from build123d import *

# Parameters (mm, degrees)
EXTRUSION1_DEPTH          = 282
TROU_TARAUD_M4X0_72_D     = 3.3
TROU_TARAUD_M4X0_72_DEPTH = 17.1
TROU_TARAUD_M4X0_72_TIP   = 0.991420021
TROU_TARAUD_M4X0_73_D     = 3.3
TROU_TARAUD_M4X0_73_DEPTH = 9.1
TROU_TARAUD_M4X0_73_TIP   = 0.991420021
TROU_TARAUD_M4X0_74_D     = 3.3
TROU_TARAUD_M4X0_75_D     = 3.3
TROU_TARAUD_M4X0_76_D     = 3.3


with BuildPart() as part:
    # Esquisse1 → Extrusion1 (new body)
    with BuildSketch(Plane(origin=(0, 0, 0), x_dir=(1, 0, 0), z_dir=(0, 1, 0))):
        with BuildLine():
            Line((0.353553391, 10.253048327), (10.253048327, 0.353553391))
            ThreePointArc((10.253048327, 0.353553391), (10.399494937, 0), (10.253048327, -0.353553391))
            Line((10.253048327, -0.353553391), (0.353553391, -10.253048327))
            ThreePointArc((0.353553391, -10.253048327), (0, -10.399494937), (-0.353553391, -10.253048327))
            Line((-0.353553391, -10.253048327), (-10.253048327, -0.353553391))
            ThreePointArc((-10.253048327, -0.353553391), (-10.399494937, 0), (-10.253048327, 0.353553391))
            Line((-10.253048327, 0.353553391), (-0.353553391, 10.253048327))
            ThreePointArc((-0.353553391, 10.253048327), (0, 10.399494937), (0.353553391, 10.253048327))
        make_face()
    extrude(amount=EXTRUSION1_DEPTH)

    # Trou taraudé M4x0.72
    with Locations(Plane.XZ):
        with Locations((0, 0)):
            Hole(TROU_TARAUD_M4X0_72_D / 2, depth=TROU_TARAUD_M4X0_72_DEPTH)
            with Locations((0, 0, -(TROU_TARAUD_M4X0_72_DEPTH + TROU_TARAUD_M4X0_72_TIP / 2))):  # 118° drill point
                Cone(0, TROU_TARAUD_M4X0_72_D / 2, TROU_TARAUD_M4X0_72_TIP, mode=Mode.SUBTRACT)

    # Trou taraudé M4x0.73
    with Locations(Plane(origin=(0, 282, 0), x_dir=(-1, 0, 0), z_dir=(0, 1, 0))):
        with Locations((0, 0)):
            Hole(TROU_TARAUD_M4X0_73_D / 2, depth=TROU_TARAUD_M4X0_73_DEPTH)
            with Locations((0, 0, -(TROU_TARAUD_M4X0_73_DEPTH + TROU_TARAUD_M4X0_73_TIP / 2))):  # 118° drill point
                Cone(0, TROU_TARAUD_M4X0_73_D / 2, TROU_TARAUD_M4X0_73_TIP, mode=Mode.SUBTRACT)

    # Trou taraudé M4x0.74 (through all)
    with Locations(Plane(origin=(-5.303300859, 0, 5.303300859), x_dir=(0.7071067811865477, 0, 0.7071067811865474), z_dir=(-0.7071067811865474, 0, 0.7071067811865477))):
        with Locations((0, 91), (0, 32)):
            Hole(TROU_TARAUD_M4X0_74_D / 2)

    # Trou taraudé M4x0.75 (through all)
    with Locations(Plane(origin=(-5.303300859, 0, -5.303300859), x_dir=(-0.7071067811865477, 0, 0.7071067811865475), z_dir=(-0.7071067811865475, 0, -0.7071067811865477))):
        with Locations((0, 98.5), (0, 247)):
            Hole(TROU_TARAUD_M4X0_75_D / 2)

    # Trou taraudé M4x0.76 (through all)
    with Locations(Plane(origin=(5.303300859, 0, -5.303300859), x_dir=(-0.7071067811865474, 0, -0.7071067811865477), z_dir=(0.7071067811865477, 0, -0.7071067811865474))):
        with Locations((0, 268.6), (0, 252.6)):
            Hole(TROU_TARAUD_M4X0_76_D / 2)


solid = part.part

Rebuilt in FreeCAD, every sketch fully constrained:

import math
import FreeCAD as App
import Part
import Sketcher
from FreeCAD import Vector
Q = App.Units.Quantity

doc = App.newDocument("Part")
body = doc.addObject("PartDesign::Body", "Body")

# Sketch on XZ plane
sketch1 = body.newObject("Sketcher::SketchObject", "Sketch")
sketch1.AttachmentSupport = (doc.getObject("XZ_Plane"), [""])
sketch1.MapMode = "FlatFace"
sketch1.addGeometry([
    Part.LineSegment(Vector(10.253048, -0.353553, 0), Vector(0.353553, -10.253048, 0)),  # 0
    Part.ArcOfCircle(Part.Circle(Vector(0, -9.899495, 0), Vector(0, 0, 1), 0.5), math.radians(-135), math.radians(-45)),  # 1
    Part.LineSegment(Vector(-0.353553, -10.253048, 0), Vector(-10.253048, -0.353553, 0)),  # 2
    Part.ArcOfCircle(Part.Circle(Vector(-9.899495, 0, 0), Vector(0, 0, 1), 0.5), math.radians(135), math.radians(225)),  # 3
    Part.LineSegment(Vector(-10.253048, 0.353553, 0), Vector(-0.353553, 10.253048, 0)),  # 4
    Part.ArcOfCircle(Part.Circle(Vector(0, 9.899495, 0), Vector(0, 0, 1), 0.5), math.radians(45), math.radians(135)),  # 5
    Part.LineSegment(Vector(0.353553, 10.253048, 0), Vector(10.253048, 0.353553, 0)),  # 6
    Part.ArcOfCircle(Part.Circle(Vector(9.899495, 0, 0), Vector(0, 0, 1), 0.5), math.radians(-45), math.radians(45)),  # 7
], False)
sketch1.addConstraint([
    Sketcher.Constraint("Tangent", 0, 2, 1, 2),
    Sketcher.Constraint("Tangent", 1, 1, 2, 1),
    Sketcher.Constraint("Tangent", 2, 2, 3, 2),
    Sketcher.Constraint("Tangent", 3, 1, 4, 1),
    Sketcher.Constraint("Tangent", 4, 2, 5, 2),
    Sketcher.Constraint("Tangent", 5, 1, 6, 1),
    Sketcher.Constraint("Tangent", 6, 2, 7, 2),
    Sketcher.Constraint("Tangent", 7, 1, 0, 1),
    Sketcher.Constraint("Equal", 1, 3),
    Sketcher.Constraint("Equal", 3, 5),
    Sketcher.Constraint("Equal", 5, 7),
    Sketcher.Constraint("Symmetric", 1, 3, 5, 3, -1, 1),
    Sketcher.Constraint("Symmetric", 3, 3, 7, 3, -1, 1),
    Sketcher.Constraint("Symmetric", 0, 2, 1, 1, -2),
    Sketcher.Constraint("Perpendicular", 0, 2),
    Sketcher.Constraint("Radius", 1, Q("0.5 mm")),
    Sketcher.Constraint("Distance", 0, Q("14 mm")),
])
pad1 = body.newObject("PartDesign::Pad", "Pad")
pad1.Profile = sketch1
pad1.Length = 282
pad1.Reversed = True

# Sketch on XZ plane
sketch2 = body.newObject("Sketcher::SketchObject", "Sketch001")
sketch2.AttachmentSupport = (doc.getObject("XZ_Plane"), [""])
sketch2.MapMode = "FlatFace"
sketch2.addGeometry(Part.Circle(Vector(0, 0, 0), Vector(0, 0, 1), 1.65), False)
sketch2.addConstraint([
    Sketcher.Constraint("Coincident", 0, 3, -1, 1),
    Sketcher.Constraint("Diameter", 0, Q("3.3 mm")),
])
doc.recompute()
hole = body.newObject("PartDesign::Hole", "Hole")
hole.Profile = sketch2
hole.ThreadType = "None"
hole.Diameter = 3.3
hole.DepthType = "Dimension"
hole.Depth = 17.1
hole.DrillPoint = "Angled"
hole.DrillPointAngle = 118

# Sketch on XZ plane
sketch3 = body.newObject("Sketcher::SketchObject", "Sketch002")
sketch3.AttachmentSupport = (doc.getObject("XZ_Plane"), [""])
sketch3.MapMode = "FlatFace"
sketch3.AttachmentOffset = App.Placement(Vector(0, 0, -282), App.Rotation())
sketch3.addGeometry(Part.Circle(Vector(0, 0, 0), Vector(0, 0, 1), 1.65), False)
sketch3.addConstraint([
    Sketcher.Constraint("Coincident", 0, 3, -1, 1),
    Sketcher.Constraint("Diameter", 0, Q("3.3 mm")),
])
doc.recompute()
hole2 = body.newObject("PartDesign::Hole", "Hole001")
hole2.Profile = sketch3
hole2.ThreadType = "None"
hole2.Diameter = 3.3
hole2.DepthType = "Dimension"
hole2.Depth = 9.1
hole2.DrillPoint = "Angled"
hole2.DrillPointAngle = 118
hole2.Reversed = True

# Sketch on an angled plane
sketch4 = body.newObject("Sketcher::SketchObject", "Sketch003")
sketch4.Placement = App.Placement(Vector(-5.303301, 0, 5.303301), App.Rotation(Vector(0.707106781, 0, 0.707106781), Vector(0, 0.999999999, 0), Vector(-0.707106781, 0, 0.707106781), "ZXY"))
sketch4.addGeometry([
    Part.Circle(Vector(0, 91, 0), Vector(0, 0, 1), 1.65),
    Part.Circle(Vector(0, 32, 0), Vector(0, 0, 1), 1.65),
], False)
sketch4.addConstraint([
    Sketcher.Constraint("Equal", 0, 1),
    Sketcher.Constraint("PointOnObject", 0, 3, -2),
    Sketcher.Constraint("PointOnObject", 1, 3, -2),
    Sketcher.Constraint("Diameter", 0, Q("3.3 mm")),
    Sketcher.Constraint("DistanceY", -1, 1, 0, 3, Q("91 mm")),
    Sketcher.Constraint("DistanceY", -1, 1, 1, 3, Q("32 mm")),
])
doc.recompute()
hole3 = body.newObject("PartDesign::Hole", "Hole002")
hole3.Profile = sketch4
hole3.ThreadType = "None"
hole3.Diameter = 3.3
hole3.DepthType = "ThroughAll"

# Sketch on an angled plane
sketch5 = body.newObject("Sketcher::SketchObject", "Sketch004")
sketch5.Placement = App.Placement(Vector(-5.303301, 0, -5.303301), App.Rotation(Vector(-0.707106781, 0, 0.707106781), Vector(0, 0.999999999, 0), Vector(-0.707106781, 0, -0.707106781), "ZXY"))
sketch5.addGeometry([
    Part.Circle(Vector(0, 98.5, 0), Vector(0, 0, 1), 1.65),
    Part.Circle(Vector(0, 247, 0), Vector(0, 0, 1), 1.65),
], False)
sketch5.addConstraint([
    Sketcher.Constraint("Equal", 0, 1),
    Sketcher.Constraint("PointOnObject", 0, 3, -2),
    Sketcher.Constraint("PointOnObject", 1, 3, -2),
    Sketcher.Constraint("Diameter", 0, Q("3.3 mm")),
    Sketcher.Constraint("DistanceY", -1, 1, 1, 3, Q("247 mm")),
    Sketcher.Constraint("DistanceY", -1, 1, 0, 3, Q("98.5 mm")),
])
doc.recompute()
hole4 = body.newObject("PartDesign::Hole", "Hole003")
hole4.Profile = sketch5
hole4.ThreadType = "None"
hole4.Diameter = 3.3
hole4.DepthType = "ThroughAll"

# Sketch on an angled plane
sketch6 = body.newObject("Sketcher::SketchObject", "Sketch005")
sketch6.Placement = App.Placement(Vector(5.303301, 0, -5.303301), App.Rotation(Vector(-0.707106781, 0, -0.707106781), Vector(0, 0.999999999, 0), Vector(0.707106781, 0, -0.707106781), "ZXY"))
sketch6.addGeometry([
    Part.Circle(Vector(0, 268.6, 0), Vector(0, 0, 1), 1.65),
    Part.Circle(Vector(0, 252.6, 0), Vector(0, 0, 1), 1.65),
], False)
sketch6.addConstraint([
    Sketcher.Constraint("Equal", 0, 1),
    Sketcher.Constraint("PointOnObject", 0, 3, -2),
    Sketcher.Constraint("PointOnObject", 1, 3, -2),
    Sketcher.Constraint("Diameter", 0, Q("3.3 mm")),
    Sketcher.Constraint("DistanceY", 1, 3, 0, 3, Q("16 mm")),
    Sketcher.Constraint("DistanceY", -1, 1, 0, 3, Q("268.6 mm")),
])
doc.recompute()
hole5 = body.newObject("PartDesign::Hole", "Hole004")
hole5.Profile = sketch6
hole5.ThreadType = "None"
hole5.Diameter = 3.3
hole5.DepthType = "ThroughAll"

doc.recompute()
